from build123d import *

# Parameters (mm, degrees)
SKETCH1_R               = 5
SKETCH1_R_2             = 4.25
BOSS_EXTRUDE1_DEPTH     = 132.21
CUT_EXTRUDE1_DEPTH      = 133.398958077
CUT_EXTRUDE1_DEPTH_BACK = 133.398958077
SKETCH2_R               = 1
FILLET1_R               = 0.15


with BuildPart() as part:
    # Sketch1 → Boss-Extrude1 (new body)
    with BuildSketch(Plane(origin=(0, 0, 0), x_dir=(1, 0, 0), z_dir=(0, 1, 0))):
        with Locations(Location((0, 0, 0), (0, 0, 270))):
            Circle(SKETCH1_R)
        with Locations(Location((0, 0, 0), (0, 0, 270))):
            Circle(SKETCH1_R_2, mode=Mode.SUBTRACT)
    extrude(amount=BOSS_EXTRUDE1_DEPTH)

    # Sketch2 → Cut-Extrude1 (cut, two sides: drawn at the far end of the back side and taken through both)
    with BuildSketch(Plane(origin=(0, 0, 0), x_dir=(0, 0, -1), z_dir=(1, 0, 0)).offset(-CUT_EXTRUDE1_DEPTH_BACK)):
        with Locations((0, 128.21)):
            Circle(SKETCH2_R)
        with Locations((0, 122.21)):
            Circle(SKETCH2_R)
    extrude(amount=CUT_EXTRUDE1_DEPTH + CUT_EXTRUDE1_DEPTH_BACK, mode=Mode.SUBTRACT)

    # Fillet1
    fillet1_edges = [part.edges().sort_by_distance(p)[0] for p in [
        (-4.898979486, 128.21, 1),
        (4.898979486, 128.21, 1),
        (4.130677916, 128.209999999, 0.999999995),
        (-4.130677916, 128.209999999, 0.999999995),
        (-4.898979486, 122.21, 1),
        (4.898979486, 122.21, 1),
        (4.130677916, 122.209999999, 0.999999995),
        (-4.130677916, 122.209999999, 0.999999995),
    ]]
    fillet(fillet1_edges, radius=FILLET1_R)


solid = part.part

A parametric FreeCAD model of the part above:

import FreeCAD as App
import Part
import Sketcher

V = App.Vector
Q = App.Units.Quantity


def edges_at(feature, points):
    """Names of the edges that pass closest to the given points."""
    edges = feature.Shape.Edges
    near = lambda p: min(range(len(edges)), key=lambda i: edges[i].distToShape(Part.Vertex(*p))[0])
    return sorted({f"Edge{near(p) + 1}" for p in points})

doc = App.newDocument("Part")
body = doc.addObject("PartDesign::Body", "Body")

# Sketch on XZ plane
sketch1 = body.newObject("Sketcher::SketchObject", "Sketch")
sketch1.AttachmentSupport = (doc.getObject("XZ_Plane"), [""])
sketch1.MapMode = "FlatFace"
sketch1.addGeometry(Part.Circle(V(0, 0, 0), V(0, 0, 1), 5), False)
sketch1.addGeometry(Part.Circle(V(0, 0, 0), V(0, 0, 1), 4.2), False)
sketch1.addConstraint(Sketcher.Constraint("Coincident", 0, 3, -1, 1))
sketch1.addConstraint(Sketcher.Constraint("Coincident", 1, 3, -1, 1))
sketch1.addConstraint(Sketcher.Constraint("Diameter", 0, Q("10 mm")))
sketch1.addConstraint(Sketcher.Constraint("Diameter", 1, Q("8.5 mm")))
pad1 = body.newObject("PartDesign::Pad", "Pad")
pad1.Profile = sketch1
pad1.Length = 132.21
pad1.Reversed = True

# Sketch on YZ plane
sketch2 = body.newObject("Sketcher::SketchObject", "Sketch001")
sketch2.AttachmentSupport = (doc.getObject("YZ_Plane"), [""])
sketch2.MapMode = "FlatFace"
sketch2.addGeometry(Part.Circle(V(128.2, 0, 0), V(0, 0, 1), 1), False)
sketch2.addGeometry(Part.Circle(V(122.2, 0, 0), V(0, 0, 1), 1), False)
sketch2.addConstraint(Sketcher.Constraint("Equal", 0, 1))
sketch2.addConstraint(Sketcher.Constraint("PointOnObject", 0, 3, -1))
sketch2.addConstraint(Sketcher.Constraint("PointOnObject", 1, 3, -1))
sketch2.addConstraint(Sketcher.Constraint("Diameter", 0, Q("2 mm")))
sketch2.addConstraint(Sketcher.Constraint("DistanceX", 1, 3, 0, 3, Q("6 mm")))
sketch2.addConstraint(Sketcher.Constraint("DistanceX", -1, 1, 0, 3, Q("128.21 mm")))
pocket1 = body.newObject("PartDesign::Pocket", "Pocket")
pocket1.Profile = sketch2
pocket1.Type = "ThroughAll"
pocket1.Midplane = True
doc.recompute()

fillet = body.newObject("PartDesign::Fillet", "Fillet")
fillet.Base = (pocket1, edges_at(pocket1, [
    (-4.899, 128.21, 1),
    (4.899, 128.21, 1),
    (4.131, 128.21, 1),
    (-4.131, 128.21, 1),
    (-4.899, 122.21, 1),
    (4.899, 122.21, 1),
    (4.131, 122.21, 1),
    (-4.131, 122.21, 1),
]))
fillet.Radius = 0.15

doc.recompute()
